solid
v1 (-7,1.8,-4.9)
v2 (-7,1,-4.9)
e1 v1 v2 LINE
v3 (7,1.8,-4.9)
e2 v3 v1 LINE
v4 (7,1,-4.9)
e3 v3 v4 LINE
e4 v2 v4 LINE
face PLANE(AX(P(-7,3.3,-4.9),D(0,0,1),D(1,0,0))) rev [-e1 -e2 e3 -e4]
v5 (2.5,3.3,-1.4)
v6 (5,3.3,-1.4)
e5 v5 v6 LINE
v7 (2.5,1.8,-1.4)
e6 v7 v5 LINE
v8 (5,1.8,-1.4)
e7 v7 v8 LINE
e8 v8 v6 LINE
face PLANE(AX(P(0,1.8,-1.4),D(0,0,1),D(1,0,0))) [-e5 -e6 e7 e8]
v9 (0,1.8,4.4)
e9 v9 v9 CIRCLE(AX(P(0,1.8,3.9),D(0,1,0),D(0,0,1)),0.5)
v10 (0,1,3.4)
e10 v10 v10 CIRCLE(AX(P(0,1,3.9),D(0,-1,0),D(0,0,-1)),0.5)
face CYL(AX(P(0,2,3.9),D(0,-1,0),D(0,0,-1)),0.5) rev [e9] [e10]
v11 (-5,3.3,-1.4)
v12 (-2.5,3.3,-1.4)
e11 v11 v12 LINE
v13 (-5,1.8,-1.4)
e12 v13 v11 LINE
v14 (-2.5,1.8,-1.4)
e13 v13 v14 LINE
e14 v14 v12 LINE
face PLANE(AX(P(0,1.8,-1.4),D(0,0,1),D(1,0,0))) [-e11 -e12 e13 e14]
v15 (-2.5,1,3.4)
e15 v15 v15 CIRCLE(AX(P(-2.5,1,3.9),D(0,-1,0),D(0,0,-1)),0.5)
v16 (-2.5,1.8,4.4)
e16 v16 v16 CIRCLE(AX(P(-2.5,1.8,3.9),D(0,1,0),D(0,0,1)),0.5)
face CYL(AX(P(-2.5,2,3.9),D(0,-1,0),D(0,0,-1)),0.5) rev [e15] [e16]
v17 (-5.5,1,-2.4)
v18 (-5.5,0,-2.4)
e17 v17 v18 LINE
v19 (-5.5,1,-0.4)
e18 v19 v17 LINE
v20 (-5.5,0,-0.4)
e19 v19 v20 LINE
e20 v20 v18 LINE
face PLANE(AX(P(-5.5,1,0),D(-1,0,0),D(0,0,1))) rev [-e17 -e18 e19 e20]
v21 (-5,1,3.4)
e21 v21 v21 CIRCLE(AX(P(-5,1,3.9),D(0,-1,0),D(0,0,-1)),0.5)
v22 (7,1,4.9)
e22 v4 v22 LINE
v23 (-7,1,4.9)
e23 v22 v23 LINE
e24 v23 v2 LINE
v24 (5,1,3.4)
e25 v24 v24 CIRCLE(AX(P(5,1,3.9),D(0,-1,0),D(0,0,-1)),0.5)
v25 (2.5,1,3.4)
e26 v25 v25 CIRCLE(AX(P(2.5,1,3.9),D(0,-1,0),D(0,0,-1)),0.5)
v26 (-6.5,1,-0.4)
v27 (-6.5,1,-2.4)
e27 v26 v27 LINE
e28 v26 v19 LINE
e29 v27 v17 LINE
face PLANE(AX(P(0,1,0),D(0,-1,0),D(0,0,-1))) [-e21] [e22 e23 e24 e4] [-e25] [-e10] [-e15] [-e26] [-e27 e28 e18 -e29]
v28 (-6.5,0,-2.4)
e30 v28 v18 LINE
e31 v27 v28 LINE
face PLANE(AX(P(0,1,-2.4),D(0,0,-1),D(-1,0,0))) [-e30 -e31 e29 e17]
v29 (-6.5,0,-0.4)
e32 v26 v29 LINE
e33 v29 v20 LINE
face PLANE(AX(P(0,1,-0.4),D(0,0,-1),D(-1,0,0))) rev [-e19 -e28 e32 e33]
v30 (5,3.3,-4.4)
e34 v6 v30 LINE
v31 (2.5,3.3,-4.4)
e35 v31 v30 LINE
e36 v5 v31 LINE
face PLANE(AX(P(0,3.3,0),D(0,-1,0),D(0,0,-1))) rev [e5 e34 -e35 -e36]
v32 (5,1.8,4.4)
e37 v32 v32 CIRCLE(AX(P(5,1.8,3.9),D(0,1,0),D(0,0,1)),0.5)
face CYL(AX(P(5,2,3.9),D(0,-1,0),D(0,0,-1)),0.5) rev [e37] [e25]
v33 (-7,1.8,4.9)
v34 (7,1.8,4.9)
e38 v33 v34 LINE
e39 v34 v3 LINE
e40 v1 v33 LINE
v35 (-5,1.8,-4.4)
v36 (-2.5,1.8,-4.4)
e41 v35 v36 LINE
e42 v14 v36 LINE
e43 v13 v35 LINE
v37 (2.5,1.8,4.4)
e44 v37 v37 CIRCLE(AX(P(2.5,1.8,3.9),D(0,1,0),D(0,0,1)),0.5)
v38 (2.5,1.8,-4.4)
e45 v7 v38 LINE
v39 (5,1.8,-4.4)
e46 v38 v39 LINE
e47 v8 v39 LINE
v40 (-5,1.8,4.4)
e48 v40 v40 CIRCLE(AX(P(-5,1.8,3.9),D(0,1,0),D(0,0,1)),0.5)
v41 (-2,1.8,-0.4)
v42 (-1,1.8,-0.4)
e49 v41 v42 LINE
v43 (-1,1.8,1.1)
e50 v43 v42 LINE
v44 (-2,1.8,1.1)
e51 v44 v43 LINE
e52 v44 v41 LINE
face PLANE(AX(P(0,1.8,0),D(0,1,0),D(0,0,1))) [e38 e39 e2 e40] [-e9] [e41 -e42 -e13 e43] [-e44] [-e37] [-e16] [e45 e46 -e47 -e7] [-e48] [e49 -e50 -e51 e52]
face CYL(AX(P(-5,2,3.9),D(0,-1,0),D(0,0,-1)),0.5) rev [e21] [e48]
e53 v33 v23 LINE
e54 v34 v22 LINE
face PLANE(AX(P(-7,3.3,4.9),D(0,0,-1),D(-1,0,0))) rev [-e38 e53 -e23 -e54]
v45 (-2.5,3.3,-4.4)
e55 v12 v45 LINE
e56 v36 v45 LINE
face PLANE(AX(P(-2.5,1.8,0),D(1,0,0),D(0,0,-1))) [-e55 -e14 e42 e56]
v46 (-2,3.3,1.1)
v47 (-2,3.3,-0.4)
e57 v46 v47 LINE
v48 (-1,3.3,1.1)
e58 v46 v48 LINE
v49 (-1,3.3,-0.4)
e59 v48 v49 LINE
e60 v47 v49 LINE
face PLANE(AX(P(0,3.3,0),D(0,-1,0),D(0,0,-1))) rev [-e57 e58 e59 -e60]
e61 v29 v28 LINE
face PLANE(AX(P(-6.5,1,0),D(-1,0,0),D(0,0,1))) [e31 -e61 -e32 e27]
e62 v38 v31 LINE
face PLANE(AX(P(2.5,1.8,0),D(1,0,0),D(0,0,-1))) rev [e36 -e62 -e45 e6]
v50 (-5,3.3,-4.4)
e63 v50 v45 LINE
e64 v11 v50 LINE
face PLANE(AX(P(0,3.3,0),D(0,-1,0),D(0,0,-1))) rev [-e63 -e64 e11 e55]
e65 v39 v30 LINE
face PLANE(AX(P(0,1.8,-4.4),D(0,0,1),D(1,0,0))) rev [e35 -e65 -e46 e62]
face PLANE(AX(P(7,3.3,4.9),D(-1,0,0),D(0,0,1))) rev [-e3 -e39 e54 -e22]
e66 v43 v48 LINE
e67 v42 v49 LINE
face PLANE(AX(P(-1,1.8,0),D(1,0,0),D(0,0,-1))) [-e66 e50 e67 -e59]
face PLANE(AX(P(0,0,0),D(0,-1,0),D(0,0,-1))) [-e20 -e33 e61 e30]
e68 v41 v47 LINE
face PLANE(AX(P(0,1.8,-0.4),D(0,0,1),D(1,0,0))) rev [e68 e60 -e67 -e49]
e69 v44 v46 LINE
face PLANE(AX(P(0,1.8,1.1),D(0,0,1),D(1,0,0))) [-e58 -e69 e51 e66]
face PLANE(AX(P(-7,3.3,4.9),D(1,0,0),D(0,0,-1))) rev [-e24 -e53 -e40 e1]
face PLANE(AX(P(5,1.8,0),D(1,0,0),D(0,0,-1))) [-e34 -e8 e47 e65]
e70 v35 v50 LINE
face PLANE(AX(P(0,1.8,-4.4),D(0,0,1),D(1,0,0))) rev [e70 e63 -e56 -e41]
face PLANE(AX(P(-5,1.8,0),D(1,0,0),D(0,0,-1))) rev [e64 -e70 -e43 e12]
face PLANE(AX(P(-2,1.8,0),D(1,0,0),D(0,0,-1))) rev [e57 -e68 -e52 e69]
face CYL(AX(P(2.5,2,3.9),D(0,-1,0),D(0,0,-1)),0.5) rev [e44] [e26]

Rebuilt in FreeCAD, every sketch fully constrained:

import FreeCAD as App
import Part
import Sketcher

V = App.Vector


def add_polygon(sketch, points):
    """Adds a closed chain of lines whose ends are joined by coincident constraints."""
    first, n = sketch.GeometryCount, len(points)
    for a, b in zip(points, points[1:] + points[:1]):
        sketch.addGeometry(Part.LineSegment(App.Vector(*a, 0), App.Vector(*b, 0)), False)
    for i in range(n):
        sketch.addConstraint(Sketcher.Constraint("Coincident", first + i, 2, first + (i + 1) % n, 1))

doc = App.newDocument("Part")
body = doc.addObject("PartDesign::Body", "Body")

sketch1 = body.newObject("Sketcher::SketchObject", "Sketch")
sketch1.AttachmentSupport = (doc.getObject("XZ_Plane"), [""])
sketch1.MapMode = "FlatFace"
add_polygon(sketch1, [(-7, -5), (-7, 5), (7, 5), (7, -5)])
sketch1.addConstraint([
    Sketcher.Constraint("Vertical", 0),
    Sketcher.Constraint("Horizontal", 1),
    Sketcher.Constraint("Vertical", 2),
    Sketcher.Constraint("Horizontal", 3),
    Sketcher.Constraint("Symmetric", 0, 2, 2, 2, -1, 1),
    Sketcher.Constraint("DistanceX", 1, 1, 1, 2, 14.0),
    Sketcher.Constraint("DistanceY", 0, 1, 0, 2, 9.8),
])
pad1 = body.newObject("PartDesign::Pad", "Pad")
pad1.Profile = sketch1
pad1.Length = 3.3
pad1.Reversed = True

sketch2 = body.newObject("Sketcher::SketchObject", "Sketch001")
sketch2.AttachmentSupport = (doc.getObject("XZ_Plane"), [""])
sketch2.MapMode = "FlatFace"
sketch2.AttachmentOffset = App.Placement(V(0, 0, -3.3), App.Rotation())
add_polygon(sketch2, [(-7, -4.9), (-7, 4.9), (7, 4.9), (7, -4.9)])
add_polygon(sketch2, [(-1, 1.1), (-2, 1.1), (-2, -0.4), (-1, -0.4)])
add_polygon(sketch2, [(-2.5, -1.4), (-5, -1.4), (-5, -4.4), (-2.5, -4.4)])
add_polygon(sketch2, [(5, -1.4), (2.5, -1.4), (2.5, -4.4), (5, -4.4)])
sketch2.addConstraint([
    Sketcher.Constraint("Vertical", 0),
    Sketcher.Constraint("Horizontal", 1),
    Sketcher.Constraint("Vertical", 2),
    Sketcher.Constraint("Horizontal", 3),
    Sketcher.Constraint("Horizontal", 4),
    Sketcher.Constraint("Vertical", 5),
    Sketcher.Constraint("Horizontal", 6),
    Sketcher.Constraint("Vertical", 7),
    Sketcher.Constraint("Horizontal", 8),
    Sketcher.Constraint("Vertical", 9),
    Sketcher.Constraint("Horizontal", 10),
    Sketcher.Constraint("Vertical", 11),
    Sketcher.Constraint("Horizontal", 12),
    Sketcher.Constraint("Vertical", 13),
    Sketcher.Constraint("Horizontal", 14),
    Sketcher.Constraint("Vertical", 15),
    Sketcher.Constraint("Symmetric", 0, 2, 2, 2, -1, 1),
    Sketcher.Constraint("Symmetric", 11, 2, 12, 2, -2),
    Sketcher.Constraint("Symmetric", 9, 2, 14, 2, -2),
    Sketcher.Constraint("DistanceX", 1, 1, 1, 2, 14.0),
    Sketcher.Constraint("DistanceX", 4, 2, 4, 1, 1.0),
    Sketcher.Constraint("DistanceY", 9, 2, 9, 1, 3.0),
    Sketcher.Constraint("DistanceX", 8, 2, 8, 1, 2.5),
    Sketcher.Constraint("DistanceY", 0, 1, 0, 2, 9.8),
    Sketcher.Constraint("DistanceY", 5, 2, 5, 1, 1.5),
    Sketcher.Constraint("DistanceX", 4, 2, -1, 1, 2.0),
    Sketcher.Constraint("DistanceX", 8, 2, -1, 1, 5.0),
    Sketcher.Constraint("DistanceY", 3, 2, 4, 2, 6.0),
    Sketcher.Constraint("DistanceY", 8, 2, 5, 2, 1.0),
])
pocket1 = body.newObject("PartDesign::Pocket", "Pocket")
pocket1.Profile = sketch2
pocket1.Length = 1.5
pocket1.Reversed = True

sketch3 = body.newObject("Sketcher::SketchObject", "Sketch002")
sketch3.AttachmentSupport = (doc.getObject("XZ_Plane"), [""])
sketch3.MapMode = "FlatFace"
add_polygon(sketch3, [(-7, 4.9), (-7, -4.9), (7, -4.9), (7, 4.9)])
add_polygon(sketch3, [(-5.5, -2.4), (-6.5, -2.4), (-6.5, -0.4), (-5.5, -0.4)])
sketch3.addConstraint([
    Sketcher.Constraint("Vertical", 0),
    Sketcher.Constraint("Horizontal", 1),
    Sketcher.Constraint("Vertical", 2),
    Sketcher.Constraint("Horizontal", 3),
    Sketcher.Constraint("Horizontal", 4),
    Sketcher.Constraint("Vertical", 5),
    Sketcher.Constraint("Horizontal", 6),
    Sketcher.Constraint("Vertical", 7),
    Sketcher.Constraint("Symmetric", 0, 2, 2, 2, -1, 1),
    Sketcher.Constraint("DistanceX", 1, 1, 1, 2, 14.0),
    Sketcher.Constraint("DistanceX", 4, 2, 4, 1, 1.0),
    Sketcher.Constraint("DistanceY", 5, 1, 5, 2, 2.0),
    Sketcher.Constraint("DistanceY", 0, 2, 0, 1, 9.8),
    Sketcher.Constraint("DistanceX", 4, 2, -1, 1, 6.5),
    Sketcher.Constraint("DistanceY", 4, 2, -1, 1, 2.4),
])
pocket2 = body.newObject("PartDesign::Pocket", "Pocket001")
pocket2.Profile = sketch3
pocket2.Length = 1

sketch4 = body.newObject("Sketcher::SketchObject", "Sketch003")
sketch4.AttachmentSupport = (doc.getObject("XZ_Plane"), [""])
sketch4.MapMode = "FlatFace"
sketch4.AttachmentOffset = App.Placement(V(0, 0, -1), App.Rotation())
sketch4.addGeometry([
    Part.Circle(V(-5, 3.9, 0), V(0, 0, 1), 0.5),
    Part.Circle(V(-2.5, 3.9, 0), V(0, 0, 1), 0.5),
    Part.Circle(V(0, 3.9, 0), V(0, 0, 1), 0.5),
    Part.Circle(V(2.5, 3.9, 0), V(0, 0, 1), 0.5),
    Part.Circle(V(5, 3.9, 0), V(0, 0, 1), 0.5),
], False)
sketch4.addConstraint([
    Sketcher.Constraint("Equal", 0, 1),
    Sketcher.Constraint("Equal", 1, 2),
    Sketcher.Constraint("Equal", 2, 3),
    Sketcher.Constraint("Equal", 3, 4),
    Sketcher.Constraint("Symmetric", 1, 3, 3, 3, -2),
    Sketcher.Constraint("Symmetric", 0, 3, 4, 3, -2),
    Sketcher.Constraint("PointOnObject", 2, 3, -2),
    Sketcher.Constraint("Horizontal", 0, 3, 1, 3),
    Sketcher.Constraint("Horizontal", 1, 3, 2, 3),
    Sketcher.Constraint("Diameter", 0, 1.0),
    Sketcher.Constraint("DistanceX", 0, 3, -1, 1, 5.0),
    Sketcher.Constraint("DistanceX", 1, 3, 3, 3, 5.0),
    Sketcher.Constraint("DistanceY", -1, 1, 0, 3, 3.9),
])
pocket3 = body.newObject("PartDesign::Pocket", "Pocket002")
pocket3.Profile = sketch4
pocket3.Length = 1

doc.recompute()
